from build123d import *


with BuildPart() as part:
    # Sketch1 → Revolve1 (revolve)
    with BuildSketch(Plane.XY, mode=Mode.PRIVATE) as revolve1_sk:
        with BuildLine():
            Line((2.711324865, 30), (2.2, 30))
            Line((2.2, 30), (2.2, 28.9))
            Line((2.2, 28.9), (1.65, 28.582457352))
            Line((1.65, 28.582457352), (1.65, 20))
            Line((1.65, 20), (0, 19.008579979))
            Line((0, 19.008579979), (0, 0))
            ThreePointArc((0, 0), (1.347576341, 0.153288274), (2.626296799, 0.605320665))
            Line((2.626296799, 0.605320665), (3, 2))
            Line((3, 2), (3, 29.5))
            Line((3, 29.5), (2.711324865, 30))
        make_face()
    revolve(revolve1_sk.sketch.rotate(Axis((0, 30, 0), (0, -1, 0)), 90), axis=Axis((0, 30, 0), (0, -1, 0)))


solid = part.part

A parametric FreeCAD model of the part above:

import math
import FreeCAD as App
import Part
import Sketcher

V = App.Vector
Q = App.Units.Quantity

doc = App.newDocument("Part")
body = doc.addObject("PartDesign::Body", "Body")

# Sketch on XY plane
sketch1 = body.newObject("Sketcher::SketchObject", "Sketch")
sketch1.AttachmentSupport = (doc.getObject("XY_Plane"), [""])
sketch1.MapMode = "FlatFace"
sketch1.addGeometry([
    Part.LineSegment(V(2.7, 30, 0), V(2.2, 30, 0)),  # 0
    Part.LineSegment(V(2.2, 30, 0), V(2.2, 28.9, 0)),  # 1
    Part.LineSegment(V(2.2, 28.9, 0), V(1.6, 28.6, 0)),  # 2
    Part.LineSegment(V(1.6, 28.6, 0), V(1.6, 20, 0)),  # 3
    Part.LineSegment(V(1.6, 20, 0), V(0, 19, 0)),  # 4
    Part.LineSegment(V(0, 19, 0), V(0, 0, 0)),  # 5
    Part.ArcOfCircle(Part.Circle(V(0, 6, 0), V(0, 0, 1), 6), math.radians(-90), math.radians(-64)),  # 6
    Part.LineSegment(V(2.6, 0.6, 0), V(3, 2, 0)),  # 7
    Part.LineSegment(V(3, 2, 0), V(3, 29.5, 0)),  # 8
    Part.LineSegment(V(3, 29.5, 0), V(2.7, 30, 0)),  # 9
], False)
sketch1.addConstraint([
    Sketcher.Constraint("Coincident", 0, 2, 1, 1),
    Sketcher.Constraint("Coincident", 1, 2, 2, 1),
    Sketcher.Constraint("Coincident", 2, 2, 3, 1),
    Sketcher.Constraint("Coincident", 3, 2, 4, 1),
    Sketcher.Constraint("Coincident", 4, 2, 5, 1),
    Sketcher.Constraint("Coincident", 5, 2, 6, 1),
    Sketcher.Constraint("Coincident", 6, 2, 7, 1),
    Sketcher.Constraint("Coincident", 7, 2, 8, 1),
    Sketcher.Constraint("Coincident", 8, 2, 9, 1),
    Sketcher.Constraint("Coincident", 9, 2, 0, 1),
    Sketcher.Constraint("Horizontal", 0),
    Sketcher.Constraint("Vertical", 1),
    Sketcher.Constraint("Vertical", 3),
    Sketcher.Constraint("Vertical", 5),
    Sketcher.Constraint("Vertical", 8),
    Sketcher.Constraint("Coincident", 5, 2, -1, 1),
    Sketcher.Constraint("PointOnObject", 6, 3, -2),
    Sketcher.Constraint("Perpendicular", 2, 9),
    Sketcher.Constraint("Radius", 6, Q("6 mm")),
    Sketcher.Constraint("Angle", 2, Q("-150 deg")),
    Sketcher.Constraint("Angle", 4, Q("-149 deg")),
    Sketcher.Constraint("Angle", 7, Q("75 deg")),
    Sketcher.Constraint("DistanceY", 1, 2, 1, 1, Q("1.1 mm")),
    Sketcher.Constraint("DistanceY", 8, 1, 8, 2, Q("27.5 mm")),
    Sketcher.Constraint("DistanceY", -1, 1, 0, 2, Q("30 mm")),
    Sketcher.Constraint("DistanceY", -1, 1, 3, 2, Q("20 mm")),
    Sketcher.Constraint("DistanceX", -1, 1, 7, 2, Q("3 mm")),
    Sketcher.Constraint("DistanceY", -1, 1, 7, 2, Q("2 mm")),
    Sketcher.Constraint("DistanceX", -1, 1, 0, 2, Q("2.2 mm")),
    Sketcher.Constraint("DistanceX", -1, 1, 2, 2, Q("1.65 mm")),
])
revolution = body.newObject("PartDesign::Revolution", "Revolution")
revolution.Profile = sketch1
revolution.ReferenceAxis = (sketch1, ["V_Axis"])
revolution.Angle = 360

doc.recompute()
